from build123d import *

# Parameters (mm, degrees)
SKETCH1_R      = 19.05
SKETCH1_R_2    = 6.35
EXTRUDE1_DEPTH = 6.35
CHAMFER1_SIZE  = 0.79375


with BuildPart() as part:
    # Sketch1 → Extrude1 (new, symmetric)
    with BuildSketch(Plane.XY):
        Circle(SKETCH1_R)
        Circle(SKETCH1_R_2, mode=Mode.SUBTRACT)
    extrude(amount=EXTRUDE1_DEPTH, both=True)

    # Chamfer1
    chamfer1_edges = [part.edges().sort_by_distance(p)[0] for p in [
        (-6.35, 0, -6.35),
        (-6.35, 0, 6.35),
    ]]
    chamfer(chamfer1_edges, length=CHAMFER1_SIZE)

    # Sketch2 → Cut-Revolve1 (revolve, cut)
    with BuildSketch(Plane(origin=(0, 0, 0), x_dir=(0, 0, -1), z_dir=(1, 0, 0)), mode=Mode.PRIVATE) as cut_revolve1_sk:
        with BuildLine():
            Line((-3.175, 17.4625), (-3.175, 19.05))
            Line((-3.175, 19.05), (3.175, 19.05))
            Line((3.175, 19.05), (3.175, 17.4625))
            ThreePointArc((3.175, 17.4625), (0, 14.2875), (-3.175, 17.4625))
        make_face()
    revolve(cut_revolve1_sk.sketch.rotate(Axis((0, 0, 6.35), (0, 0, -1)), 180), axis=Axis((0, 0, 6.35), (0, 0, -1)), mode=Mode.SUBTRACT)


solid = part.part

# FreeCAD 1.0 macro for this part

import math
import FreeCAD as App
import Part
import Sketcher
Q = App.Units.Quantity


def edges_at(feature, points):
    """Names of the edges that pass closest to the given points."""
    edges = feature.Shape.Edges
    near = lambda p: min(range(len(edges)), key=lambda i: edges[i].distToShape(Part.Vertex(*p))[0])
    return sorted({f"Edge{near(p) + 1}" for p in points})

doc = App.newDocument("Part")
body = doc.addObject("PartDesign::Body", "Body")

sketch1 = body.newObject("Sketcher::SketchObject", "Sketch")
sketch1.AttachmentSupport = (doc.getObject("XY_Plane"), [""])
sketch1.MapMode = "FlatFace"
sketch1.addGeometry([
    Part.Circle(App.Vector(0, 0, 0), App.Vector(0, 0, 1), 19),
    Part.Circle(App.Vector(0, 0, 0), App.Vector(0, 0, 1), 6),
], False)
sketch1.addConstraint([
    Sketcher.Constraint("Coincident", 0, 3, -1, 1),
    Sketcher.Constraint("Coincident", 1, 3, -1, 1),
    Sketcher.Constraint("Diameter", 0, Q("1.5 in")),
    Sketcher.Constraint("Diameter", 1, Q("0.5 in")),
])
pad1 = body.newObject("PartDesign::Pad", "Pad")
pad1.Profile = sketch1
pad1.Length = Q("0.5 in")
pad1.Midplane = True
doc.recompute()

chamfer = body.newObject("PartDesign::Chamfer", "Chamfer")
chamfer.Base = (pad1, edges_at(pad1, [(-6.35, 0, -6.35), (-6.35, 0, 6.35)]))
chamfer.Size = Q("0.03125 in")

sketch2 = body.newObject("Sketcher::SketchObject", "Sketch001")
sketch2.AttachmentSupport = (doc.getObject("YZ_Plane"), [""])
sketch2.MapMode = "FlatFace"
sketch2.addGeometry([
    Part.LineSegment(App.Vector(19.1, 3.2, 0), App.Vector(17.5, 3.2, 0)),
    Part.ArcOfCircle(Part.Circle(App.Vector(17.5, 0, 0), App.Vector(0, 0, 1), 3.2), math.radians(90), math.radians(270)),
    Part.LineSegment(App.Vector(17.5, -3.2, 0), App.Vector(19.1, -3.2, 0)),
    Part.LineSegment(App.Vector(19.1, -3.2, 0), App.Vector(19.1, 3.2, 0)),
], False)
sketch2.addConstraint([
    Sketcher.Constraint("Tangent", 0, 2, 1, 1),
    Sketcher.Constraint("Tangent", 1, 2, 2, 1),
    Sketcher.Constraint("Coincident", 2, 2, 3, 1),
    Sketcher.Constraint("Coincident", 3, 2, 0, 1),
    Sketcher.Constraint("Horizontal", 0),
    Sketcher.Constraint("Horizontal", 2),
    Sketcher.Constraint("Vertical", 3),
    Sketcher.Constraint("PointOnObject", 1, 3, -1),
    Sketcher.Constraint("Radius", 1, Q("0.125 in")),
    Sketcher.Constraint("DistanceX", 0, 2, 0, 1, Q("0.0625 in")),
    Sketcher.Constraint("DistanceX", -1, 1, 2, 2, Q("0.75 in")),
])
groove = body.newObject("PartDesign::Groove", "Groove")
groove.Profile = sketch2
groove.ReferenceAxis = (sketch2, ["V_Axis"])
groove.Angle = 360

doc.recompute()
